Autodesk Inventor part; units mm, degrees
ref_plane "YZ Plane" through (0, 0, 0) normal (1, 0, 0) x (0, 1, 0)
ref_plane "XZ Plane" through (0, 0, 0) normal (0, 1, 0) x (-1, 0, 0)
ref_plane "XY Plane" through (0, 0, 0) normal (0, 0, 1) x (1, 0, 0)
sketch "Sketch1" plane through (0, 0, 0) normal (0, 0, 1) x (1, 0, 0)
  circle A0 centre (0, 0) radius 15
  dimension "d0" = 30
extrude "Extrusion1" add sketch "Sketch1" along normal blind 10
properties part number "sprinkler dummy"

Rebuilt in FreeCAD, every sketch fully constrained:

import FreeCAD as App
import Part
import Sketcher

V = App.Vector
Q = App.Units.Quantity

doc = App.newDocument("Part")
body = doc.addObject("PartDesign::Body", "Body")

# Sketch on XY plane
sketch1 = body.newObject("Sketcher::SketchObject", "Sketch")
sketch1.AttachmentSupport = (doc.getObject("XY_Plane"), [""])
sketch1.MapMode = "FlatFace"
sketch1.addGeometry(Part.Circle(V(0, 0, 0), V(0, 0, 1), 15), False)
sketch1.addConstraint(Sketcher.Constraint("Coincident", 0, 3, -1, 1))
sketch1.addConstraint(Sketcher.Constraint("Diameter", 0, Q("30 mm")))
pad1 = body.newObject("PartDesign::Pad", "Pad")
pad1.Profile = sketch1
pad1.Length = 10

doc.recompute()
